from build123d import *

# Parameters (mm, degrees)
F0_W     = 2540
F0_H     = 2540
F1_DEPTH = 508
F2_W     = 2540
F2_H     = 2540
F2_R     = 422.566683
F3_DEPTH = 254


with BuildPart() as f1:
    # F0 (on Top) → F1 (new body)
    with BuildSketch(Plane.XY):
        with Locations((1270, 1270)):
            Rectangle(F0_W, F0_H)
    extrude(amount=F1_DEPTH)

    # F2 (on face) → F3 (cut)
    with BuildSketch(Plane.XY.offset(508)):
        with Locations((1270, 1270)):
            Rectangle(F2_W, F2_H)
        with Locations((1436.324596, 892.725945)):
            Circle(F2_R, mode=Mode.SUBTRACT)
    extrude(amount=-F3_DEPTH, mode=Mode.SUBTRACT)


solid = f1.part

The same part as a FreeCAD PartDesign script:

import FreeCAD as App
import Part
import Sketcher

V = App.Vector
Q = App.Units.Quantity


def add_polygon(sketch, points):
    """Adds a closed chain of lines whose ends are joined by coincident constraints."""
    first, n = sketch.GeometryCount, len(points)
    for a, b in zip(points, points[1:] + points[:1]):
        sketch.addGeometry(Part.LineSegment(App.Vector(*a, 0), App.Vector(*b, 0)), False)
    for i in range(n):
        sketch.addConstraint(Sketcher.Constraint("Coincident", first + i, 2, first + (i + 1) % n, 1))

doc = App.newDocument("Part")
body = doc.addObject("PartDesign::Body", "Body")

sketch1 = body.newObject("Sketcher::SketchObject", "Sketch")
sketch1.AttachmentSupport = (doc.getObject("XY_Plane"), [""])
sketch1.MapMode = "FlatFace"
add_polygon(sketch1, [(0, 2540), (0, 0), (2540, 0), (2540, 2540)])
sketch1.addConstraint(Sketcher.Constraint("Vertical", 0))
sketch1.addConstraint(Sketcher.Constraint("Horizontal", 1))
sketch1.addConstraint(Sketcher.Constraint("Vertical", 2))
sketch1.addConstraint(Sketcher.Constraint("Horizontal", 3))
sketch1.addConstraint(Sketcher.Constraint("Coincident", 0, 2, -1, 1))
sketch1.addConstraint(Sketcher.Constraint("Equal", 3, 0))
sketch1.addConstraint(Sketcher.Constraint("DistanceX", 1, 1, 1, 2, Q("100 in")))
pad1 = body.newObject("PartDesign::Pad", "Pad")
pad1.Profile = sketch1
pad1.Length = Q("20 in")

sketch2 = body.newObject("Sketcher::SketchObject", "Sketch001")
sketch2.AttachmentSupport = (doc.getObject("XY_Plane"), [""])
sketch2.MapMode = "FlatFace"
sketch2.AttachmentOffset = App.Placement(V(0, 0, 20 * 25.4), App.Rotation())
add_polygon(sketch2, [(0, 2540), (0, 0), (2540, 0), (2540, 2540)])
sketch2.addGeometry(Part.Circle(V(1436, 893, 0), V(0, 0, 1), 423), False)
sketch2.addConstraint(Sketcher.Constraint("Vertical", 0))
sketch2.addConstraint(Sketcher.Constraint("Horizontal", 1))
sketch2.addConstraint(Sketcher.Constraint("Vertical", 2))
sketch2.addConstraint(Sketcher.Constraint("Horizontal", 3))
sketch2.addConstraint(Sketcher.Constraint("Coincident", 0, 2, -1, 1))
sketch2.addConstraint(Sketcher.Constraint("Equal", 3, 0))
sketch2.addConstraint(Sketcher.Constraint("DistanceX", 1, 1, 1, 2, Q("100 in")))
sketch2.addConstraint(Sketcher.Constraint("Diameter", 4, Q("845.133366 mm")))
sketch2.addConstraint(Sketcher.Constraint("DistanceX", -1, 1, 4, 3, Q("1436.324596 mm")))
sketch2.addConstraint(Sketcher.Constraint("DistanceY", -1, 1, 4, 3, Q("892.725945 mm")))
pocket1 = body.newObject("PartDesign::Pocket", "Pocket")
pocket1.Profile = sketch2
pocket1.Length = Q("10 in")

doc.recompute()
